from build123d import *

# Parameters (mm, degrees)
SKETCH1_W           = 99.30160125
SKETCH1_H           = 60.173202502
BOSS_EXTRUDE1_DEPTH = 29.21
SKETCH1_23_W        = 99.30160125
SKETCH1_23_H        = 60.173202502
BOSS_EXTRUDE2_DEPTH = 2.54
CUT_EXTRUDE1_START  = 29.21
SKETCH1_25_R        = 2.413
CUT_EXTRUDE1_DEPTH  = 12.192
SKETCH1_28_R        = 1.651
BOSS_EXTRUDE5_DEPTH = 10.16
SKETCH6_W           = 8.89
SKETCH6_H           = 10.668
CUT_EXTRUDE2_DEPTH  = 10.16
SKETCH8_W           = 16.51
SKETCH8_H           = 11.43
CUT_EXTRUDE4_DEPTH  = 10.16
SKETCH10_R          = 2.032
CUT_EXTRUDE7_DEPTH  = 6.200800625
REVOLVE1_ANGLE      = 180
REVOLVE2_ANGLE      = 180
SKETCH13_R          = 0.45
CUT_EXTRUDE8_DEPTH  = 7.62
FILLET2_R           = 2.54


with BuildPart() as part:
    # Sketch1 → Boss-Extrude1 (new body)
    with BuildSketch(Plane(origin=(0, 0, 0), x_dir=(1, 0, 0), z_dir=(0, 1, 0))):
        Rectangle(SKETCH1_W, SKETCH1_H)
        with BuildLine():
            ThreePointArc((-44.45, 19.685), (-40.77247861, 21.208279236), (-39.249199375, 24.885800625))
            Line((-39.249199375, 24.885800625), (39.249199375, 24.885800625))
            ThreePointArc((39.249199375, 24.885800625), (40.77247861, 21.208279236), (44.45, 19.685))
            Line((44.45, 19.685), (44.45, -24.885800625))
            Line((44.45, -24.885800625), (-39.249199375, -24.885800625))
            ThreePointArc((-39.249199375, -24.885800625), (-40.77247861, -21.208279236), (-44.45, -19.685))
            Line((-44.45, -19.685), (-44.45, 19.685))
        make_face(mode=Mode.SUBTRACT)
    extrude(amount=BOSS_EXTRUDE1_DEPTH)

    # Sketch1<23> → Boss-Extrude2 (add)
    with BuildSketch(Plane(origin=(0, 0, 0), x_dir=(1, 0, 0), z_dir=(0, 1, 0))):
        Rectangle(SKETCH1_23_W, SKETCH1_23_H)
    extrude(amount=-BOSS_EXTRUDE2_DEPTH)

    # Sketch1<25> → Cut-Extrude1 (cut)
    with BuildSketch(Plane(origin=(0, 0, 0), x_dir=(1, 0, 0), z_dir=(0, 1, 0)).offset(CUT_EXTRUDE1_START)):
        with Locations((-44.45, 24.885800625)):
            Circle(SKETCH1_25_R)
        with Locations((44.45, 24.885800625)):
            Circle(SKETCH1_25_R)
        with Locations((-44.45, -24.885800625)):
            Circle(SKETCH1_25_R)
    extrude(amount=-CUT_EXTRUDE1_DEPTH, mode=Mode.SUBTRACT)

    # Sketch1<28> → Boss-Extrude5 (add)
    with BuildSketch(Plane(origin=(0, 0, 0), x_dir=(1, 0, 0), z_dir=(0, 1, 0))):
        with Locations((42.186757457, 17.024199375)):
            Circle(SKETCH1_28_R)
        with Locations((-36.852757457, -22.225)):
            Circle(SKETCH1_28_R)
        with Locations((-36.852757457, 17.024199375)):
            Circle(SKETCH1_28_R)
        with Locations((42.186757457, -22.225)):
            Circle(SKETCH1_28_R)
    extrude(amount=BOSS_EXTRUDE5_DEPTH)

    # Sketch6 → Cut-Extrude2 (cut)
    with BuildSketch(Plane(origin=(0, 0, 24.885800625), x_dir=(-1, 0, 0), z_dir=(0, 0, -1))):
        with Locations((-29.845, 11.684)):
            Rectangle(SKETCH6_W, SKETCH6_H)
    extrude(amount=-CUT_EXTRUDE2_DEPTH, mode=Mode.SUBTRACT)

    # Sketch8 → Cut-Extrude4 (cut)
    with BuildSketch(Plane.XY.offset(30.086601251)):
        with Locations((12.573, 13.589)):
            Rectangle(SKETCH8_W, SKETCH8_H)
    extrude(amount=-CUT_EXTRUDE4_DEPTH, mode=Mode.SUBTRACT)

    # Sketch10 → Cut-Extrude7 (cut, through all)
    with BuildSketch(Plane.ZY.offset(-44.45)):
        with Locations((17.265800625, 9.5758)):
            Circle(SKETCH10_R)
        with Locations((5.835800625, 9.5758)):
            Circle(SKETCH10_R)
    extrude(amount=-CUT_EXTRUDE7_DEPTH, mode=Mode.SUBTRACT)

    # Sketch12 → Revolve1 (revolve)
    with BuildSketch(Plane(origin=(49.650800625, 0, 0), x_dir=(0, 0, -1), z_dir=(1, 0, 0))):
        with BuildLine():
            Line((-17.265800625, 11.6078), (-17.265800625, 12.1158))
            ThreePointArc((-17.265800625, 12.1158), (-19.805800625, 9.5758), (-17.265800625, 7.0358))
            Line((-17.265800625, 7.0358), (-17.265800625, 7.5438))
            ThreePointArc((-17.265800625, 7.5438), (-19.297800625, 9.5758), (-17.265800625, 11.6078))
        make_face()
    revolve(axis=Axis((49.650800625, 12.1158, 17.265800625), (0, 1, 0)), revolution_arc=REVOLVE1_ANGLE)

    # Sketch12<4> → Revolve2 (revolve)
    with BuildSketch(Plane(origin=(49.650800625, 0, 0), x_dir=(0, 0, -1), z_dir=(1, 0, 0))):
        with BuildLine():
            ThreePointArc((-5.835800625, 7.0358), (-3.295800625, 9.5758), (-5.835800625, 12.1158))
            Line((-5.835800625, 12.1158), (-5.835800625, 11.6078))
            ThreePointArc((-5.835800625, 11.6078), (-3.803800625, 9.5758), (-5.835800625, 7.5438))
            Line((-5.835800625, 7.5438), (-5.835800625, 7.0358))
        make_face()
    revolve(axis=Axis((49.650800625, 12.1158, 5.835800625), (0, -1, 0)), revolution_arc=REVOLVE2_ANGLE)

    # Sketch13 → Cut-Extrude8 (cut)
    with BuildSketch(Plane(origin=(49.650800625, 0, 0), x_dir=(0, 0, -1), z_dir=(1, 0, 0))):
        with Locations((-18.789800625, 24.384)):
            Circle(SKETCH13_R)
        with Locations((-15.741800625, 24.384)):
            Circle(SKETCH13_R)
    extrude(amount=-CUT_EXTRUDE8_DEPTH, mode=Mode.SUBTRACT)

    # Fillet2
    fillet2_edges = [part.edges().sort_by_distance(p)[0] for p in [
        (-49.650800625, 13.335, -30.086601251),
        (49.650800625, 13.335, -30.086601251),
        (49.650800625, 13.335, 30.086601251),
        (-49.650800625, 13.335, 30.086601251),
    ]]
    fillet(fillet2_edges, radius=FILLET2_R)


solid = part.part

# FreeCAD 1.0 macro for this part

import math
import FreeCAD as App
import Part
import Sketcher
from FreeCAD import Vector
Q = App.Units.Quantity


def edges_at(feature, points):
    """Names of the edges that pass closest to the given points."""
    edges = feature.Shape.Edges
    near = lambda p: min(range(len(edges)), key=lambda i: edges[i].distToShape(Part.Vertex(*p))[0])
    return sorted({f"Edge{near(p) + 1}" for p in points})

doc = App.newDocument("Part")
body = doc.addObject("PartDesign::Body", "Body")

# Sketch on XZ plane
sketch1 = body.newObject("Sketcher::SketchObject", "Sketch")
sketch1.AttachmentSupport = (doc.getObject("XZ_Plane"), [""])
sketch1.MapMode = "FlatFace"
sketch1.addGeometry([
    Part.LineSegment(Vector(-49.650801, -30.086601, 0), Vector(-49.650801, 30.086601, 0)),  # 0
    Part.LineSegment(Vector(-49.650801, 30.086601, 0), Vector(49.650801, 30.086601, 0)),  # 1
    Part.LineSegment(Vector(49.650801, 30.086601, 0), Vector(49.650801, -30.086601, 0)),  # 2
    Part.LineSegment(Vector(49.650801, -30.086601, 0), Vector(-49.650801, -30.086601, 0)),  # 3
    Part.LineSegment(Vector(-44.45, 19.685, 0), Vector(-44.45, -19.685, 0)),  # 4
    Part.ArcOfCircle(Part.Circle(Vector(-44.45, -24.885801, 0), Vector(0, 0, 1), 5.200801), math.radians(0), math.radians(90)),  # 5
    Part.LineSegment(Vector(-39.249199, -24.885801, 0), Vector(39.249199, -24.885801, 0)),  # 6
    Part.ArcOfCircle(Part.Circle(Vector(44.45, -24.885801, 0), Vector(0, 0, 1), 5.200801), math.radians(90), math.radians(180)),  # 7
    Part.LineSegment(Vector(44.45, -19.685, 0), Vector(44.45, 24.885801, 0)),  # 8
    Part.LineSegment(Vector(44.45, 24.885801, 0), Vector(-39.249199, 24.885801, 0)),  # 9
    Part.ArcOfCircle(Part.Circle(Vector(-44.45, 24.885801, 0), Vector(0, 0, 1), 5.200801), math.radians(-90), math.radians(0)),  # 10
], False)
sketch1.addConstraint([
    Sketcher.Constraint("Coincident", 0, 2, 1, 1),
    Sketcher.Constraint("Coincident", 1, 2, 2, 1),
    Sketcher.Constraint("Coincident", 2, 2, 3, 1),
    Sketcher.Constraint("Coincident", 3, 2, 0, 1),
    Sketcher.Constraint("Coincident", 4, 2, 5, 2),
    Sketcher.Constraint("Coincident", 5, 1, 6, 1),
    Sketcher.Constraint("Coincident", 6, 2, 7, 2),
    Sketcher.Constraint("Coincident", 7, 1, 8, 1),
    Sketcher.Constraint("Coincident", 8, 2, 9, 1),
    Sketcher.Constraint("Coincident", 9, 2, 10, 2),
    Sketcher.Constraint("Coincident", 10, 1, 4, 1),
    Sketcher.Constraint("Vertical", 0),
    Sketcher.Constraint("Horizontal", 1),
    Sketcher.Constraint("Vertical", 2),
    Sketcher.Constraint("Horizontal", 3),
    Sketcher.Constraint("Vertical", 4),
    Sketcher.Constraint("Horizontal", 6),
    Sketcher.Constraint("Vertical", 8),
    Sketcher.Constraint("Horizontal", 9),
    Sketcher.Constraint("Equal", 5, 7),
    Sketcher.Constraint("Equal", 7, 10),
    Sketcher.Constraint("Symmetric", 7, 3, 10, 3, -1, 1),
    Sketcher.Constraint("Symmetric", 0, 2, 2, 2, -1, 1),
    Sketcher.Constraint("Symmetric", 5, 3, 7, 3, -2),
    Sketcher.Constraint("Horizontal", 7, 3, 5, 1),
    Sketcher.Constraint("Horizontal", 10, 3, 8, 2),
    Sketcher.Constraint("Vertical", 10, 3, 4, 2),
    Sketcher.Constraint("DistanceY", 4, 2, 4, 1, Q("1.55 in")),
    Sketcher.Constraint("DistanceX", 5, 3, 7, 3, Q("3.5 in")),
    Sketcher.Constraint("DistanceX", -1, 1, 7, 1, Q("1.75 in")),
    Sketcher.Constraint("Radius", 5, Q("5.200801 mm")),
    Sketcher.Constraint("DistanceX", 1, 1, 1, 2, Q("99.301601 mm")),
    Sketcher.Constraint("DistanceY", -1, 1, 0, 2, Q("30.086601 mm")),
])
pad1 = body.newObject("PartDesign::Pad", "Pad")
pad1.Profile = sketch1
pad1.Length = Q("1.15 in")
pad1.Reversed = True

# Sketch on XZ plane
sketch2 = body.newObject("Sketcher::SketchObject", "Sketch001")
sketch2.AttachmentSupport = (doc.getObject("XZ_Plane"), [""])
sketch2.MapMode = "FlatFace"
sketch2.addGeometry([
    Part.LineSegment(Vector(-49.650801, -30.086601, 0), Vector(-49.650801, 30.086601, 0)),
    Part.LineSegment(Vector(-49.650801, 30.086601, 0), Vector(49.650801, 30.086601, 0)),
    Part.LineSegment(Vector(49.650801, 30.086601, 0), Vector(49.650801, -30.086601, 0)),
    Part.LineSegment(Vector(49.650801, -30.086601, 0), Vector(-49.650801, -30.086601, 0)),
], False)
sketch2.addConstraint([
    Sketcher.Constraint("Coincident", 0, 2, 1, 1),
    Sketcher.Constraint("Coincident", 1, 2, 2, 1),
    Sketcher.Constraint("Coincident", 2, 2, 3, 1),
    Sketcher.Constraint("Coincident", 3, 2, 0, 1),
    Sketcher.Constraint("Vertical", 0),
    Sketcher.Constraint("Horizontal", 1),
    Sketcher.Constraint("Vertical", 2),
    Sketcher.Constraint("Horizontal", 3),
    Sketcher.Constraint("Symmetric", 0, 2, 2, 2, -1, 1),
    Sketcher.Constraint("DistanceX", 1, 1, 1, 2, Q("99.301601 mm")),
    Sketcher.Constraint("DistanceY", -1, 1, 0, 2, Q("30.086601 mm")),
])
pad2 = body.newObject("PartDesign::Pad", "Pad001")
pad2.Profile = sketch2
pad2.Length = Q("0.1 in")

# Sketch on XZ plane
sketch3 = body.newObject("Sketcher::SketchObject", "Sketch002")
sketch3.AttachmentSupport = (doc.getObject("XZ_Plane"), [""])
sketch3.MapMode = "FlatFace"
sketch3.AttachmentOffset = App.Placement(Vector(0, 0, -1.15 * 25.4), App.Rotation())
sketch3.addGeometry([
    Part.Circle(Vector(-44.45, -24.885801, 0), Vector(0, 0, 1), 2.413),
    Part.Circle(Vector(44.45, -24.885801, 0), Vector(0, 0, 1), 2.413),
    Part.Circle(Vector(-44.45, 24.885801, 0), Vector(0, 0, 1), 2.413),
], False)
sketch3.addConstraint([
    Sketcher.Constraint("Equal", 0, 1),
    Sketcher.Constraint("Equal", 1, 2),
    Sketcher.Constraint("Symmetric", 1, 3, 2, 3, -1, 1),
    Sketcher.Constraint("Symmetric", 0, 3, 1, 3, -2),
    Sketcher.Constraint("Diameter", 0, Q("0.19 in")),
    Sketcher.Constraint("DistanceX", 0, 3, 1, 3, Q("3.5 in")),
    Sketcher.Constraint("DistanceY", 0, 3, -1, 1, Q("24.885801 mm")),
])
pocket1 = body.newObject("PartDesign::Pocket", "Pocket")
pocket1.Profile = sketch3
pocket1.Length = Q("0.48 in")
pocket1.Reversed = True

# Sketch on XZ plane
sketch4 = body.newObject("Sketcher::SketchObject", "Sketch003")
sketch4.AttachmentSupport = (doc.getObject("XZ_Plane"), [""])
sketch4.MapMode = "FlatFace"
sketch4.addGeometry([
    Part.Circle(Vector(42.186757, -17.024199, 0), Vector(0, 0, 1), 1.651),
    Part.Circle(Vector(-36.852757, 22.225, 0), Vector(0, 0, 1), 1.651),
    Part.Circle(Vector(-36.852757, -17.024199, 0), Vector(0, 0, 1), 1.651),
    Part.Circle(Vector(42.186757, 22.225, 0), Vector(0, 0, 1), 1.651),
], False)
sketch4.addConstraint([
    Sketcher.Constraint("Equal", 0, 1),
    Sketcher.Constraint("Equal", 1, 2),
    Sketcher.Constraint("Equal", 2, 3),
    Sketcher.Constraint("Horizontal", 0, 3, 2, 3),
    Sketcher.Constraint("Horizontal", 1, 3, 3, 3),
    Sketcher.Constraint("Vertical", 1, 3, 2, 3),
    Sketcher.Constraint("Vertical", 0, 3, 3, 3),
    Sketcher.Constraint("Diameter", 0, Q("0.13 in")),
    Sketcher.Constraint("DistanceY", -1, 1, 1, 3, Q("0.875 in")),
    Sketcher.Constraint("DistanceY", 0, 3, -1, 1, Q("17.024199 mm")),
    Sketcher.Constraint("DistanceX", -1, 1, 0, 3, Q("42.186757 mm")),
    Sketcher.Constraint("DistanceX", 1, 3, -1, 1, Q("36.852757 mm")),
])
pad3 = body.newObject("PartDesign::Pad", "Pad002")
pad3.Profile = sketch4
pad3.Length = Q("0.4 in")
pad3.Reversed = True

# Sketch on XY plane
sketch5 = body.newObject("Sketcher::SketchObject", "Sketch004")
sketch5.AttachmentSupport = (doc.getObject("XY_Plane"), [""])
sketch5.MapMode = "FlatFace"
sketch5.AttachmentOffset = App.Placement(Vector(0, 0, 24.885801), App.Rotation())
sketch5.addGeometry([
    Part.LineSegment(Vector(34.29, 17.018, 0), Vector(34.29, 6.35, 0)),
    Part.LineSegment(Vector(34.29, 6.35, 0), Vector(25.4, 6.35, 0)),
    Part.LineSegment(Vector(25.4, 6.35, 0), Vector(25.4, 17.018, 0)),
    Part.LineSegment(Vector(25.4, 17.018, 0), Vector(34.29, 17.018, 0)),
], False)
sketch5.addConstraint([
    Sketcher.Constraint("Coincident", 0, 2, 1, 1),
    Sketcher.Constraint("Coincident", 1, 2, 2, 1),
    Sketcher.Constraint("Coincident", 2, 2, 3, 1),
    Sketcher.Constraint("Coincident", 3, 2, 0, 1),
    Sketcher.Constraint("Vertical", 0),
    Sketcher.Constraint("Horizontal", 1),
    Sketcher.Constraint("Vertical", 2),
    Sketcher.Constraint("Horizontal", 3),
    Sketcher.Constraint("DistanceX", -1, 1, 1, 2, Q("1 in")),
    Sketcher.Constraint("DistanceX", 1, 2, 1, 1, Q("0.35 in")),
    Sketcher.Constraint("DistanceY", 0, 2, 0, 1, Q("0.42 in")),
    Sketcher.Constraint("DistanceY", -1, 1, 0, 2, Q("0.25 in")),
])
pocket2 = body.newObject("PartDesign::Pocket", "Pocket001")
pocket2.Profile = sketch5
pocket2.Length = Q("0.4 in")
pocket2.Reversed = True

# Sketch on XY plane
sketch6 = body.newObject("Sketcher::SketchObject", "Sketch005")
sketch6.AttachmentSupport = (doc.getObject("XY_Plane"), [""])
sketch6.MapMode = "FlatFace"
sketch6.AttachmentOffset = App.Placement(Vector(0, 0, 30.086601), App.Rotation())
sketch6.addGeometry([
    Part.LineSegment(Vector(4.318, 19.304, 0), Vector(4.318, 7.874, 0)),
    Part.LineSegment(Vector(4.318, 7.874, 0), Vector(20.828, 7.874, 0)),
    Part.LineSegment(Vector(20.828, 7.874, 0), Vector(20.828, 19.304, 0)),
    Part.LineSegment(Vector(20.828, 19.304, 0), Vector(4.318, 19.304, 0)),
], False)
sketch6.addConstraint([
    Sketcher.Constraint("Coincident", 0, 2, 1, 1),
    Sketcher.Constraint("Coincident", 1, 2, 2, 1),
    Sketcher.Constraint("Coincident", 2, 2, 3, 1),
    Sketcher.Constraint("Coincident", 3, 2, 0, 1),
    Sketcher.Constraint("Vertical", 0),
    Sketcher.Constraint("Horizontal", 1),
    Sketcher.Constraint("Vertical", 2),
    Sketcher.Constraint("Horizontal", 3),
    Sketcher.Constraint("DistanceX", 1, 1, 1, 2, Q("0.65 in")),
    Sketcher.Constraint("DistanceY", 0, 2, 0, 1, Q("0.45 in")),
    Sketcher.Constraint("DistanceX", -1, 1, 0, 2, Q("0.17 in")),
    Sketcher.Constraint("DistanceY", -1, 1, 0, 2, Q("0.31 in")),
])
pocket3 = body.newObject("PartDesign::Pocket", "Pocket002")
pocket3.Profile = sketch6
pocket3.Length = Q("0.4 in")

# Sketch on YZ plane
sketch7 = body.newObject("Sketcher::SketchObject", "Sketch006")
sketch7.AttachmentSupport = (doc.getObject("YZ_Plane"), [""])
sketch7.MapMode = "FlatFace"
sketch7.AttachmentOffset = App.Placement(Vector(0, 0, 1.75 * 25.4), App.Rotation())
sketch7.addGeometry([
    Part.Circle(Vector(9.5758, 17.265801, 0), Vector(0, 0, 1), 2.032),
    Part.Circle(Vector(9.5758, 5.835801, 0), Vector(0, 0, 1), 2.032),
], False)
sketch7.addConstraint([
    Sketcher.Constraint("Equal", 0, 1),
    Sketcher.Constraint("Vertical", 0, 3, 1, 3),
    Sketcher.Constraint("Diameter", 0, Q("0.16 in")),
    Sketcher.Constraint("DistanceY", 1, 3, 0, 3, Q("0.45 in")),
    Sketcher.Constraint("DistanceX", -1, 1, 0, 3, Q("0.377 in")),
    Sketcher.Constraint("DistanceY", -1, 1, 0, 3, Q("17.265801 mm")),
])
pocket4 = body.newObject("PartDesign::Pocket", "Pocket003")
pocket4.Profile = sketch7
pocket4.Type = "ThroughAll"
pocket4.Reversed = True

# Sketch on YZ plane
sketch8 = body.newObject("Sketcher::SketchObject", "Sketch007")
sketch8.AttachmentSupport = (doc.getObject("YZ_Plane"), [""])
sketch8.MapMode = "FlatFace"
sketch8.AttachmentOffset = App.Placement(Vector(0, 0, 49.650801), App.Rotation())
sketch8.addGeometry([
    Part.LineSegment(Vector(11.6078, 17.265801, 0), Vector(12.1158, 17.265801, 0)),
    Part.ArcOfCircle(Part.Circle(Vector(9.5758, 17.265801, 0), Vector(0, 0, 1), 2.54), math.radians(0), math.radians(180)),
    Part.LineSegment(Vector(7.0358, 17.265801, 0), Vector(7.5438, 17.265801, 0)),
    Part.ArcOfCircle(Part.Circle(Vector(9.5758, 17.265801, 0), Vector(0, 0, 1), 2.032), math.radians(0), math.radians(180)),
], False)
sketch8.addGeometry(Part.LineSegment(Vector(7.0358, 17.265801, 0), Vector(12.1158, 17.265801, 0)), True)  # axis
sketch8.addConstraint([
    Sketcher.Constraint("Coincident", 0, 2, 1, 1),
    Sketcher.Constraint("Coincident", 1, 2, 2, 1),
    Sketcher.Constraint("Coincident", 2, 2, 3, 2),
    Sketcher.Constraint("Coincident", 3, 1, 0, 1),
    Sketcher.Constraint("Horizontal", 0),
    Sketcher.Constraint("Horizontal", 2),
    Sketcher.Constraint("Horizontal", 4),
    Sketcher.Constraint("Coincident", 3, 3, 1, 3),
    Sketcher.Constraint("Coincident", 4, 1, 1, 2),
    Sketcher.Constraint("Coincident", 4, 2, 0, 2),
    Sketcher.Constraint("Horizontal", 3, 3, 0, 2),
    Sketcher.Constraint("Radius", 1, Q("0.1 in")),
    Sketcher.Constraint("Radius", 3, Q("0.08 in")),
    Sketcher.Constraint("DistanceX", -1, 1, 1, 3, Q("0.377 in")),
    Sketcher.Constraint("DistanceY", -1, 1, 1, 3, Q("17.265801 mm")),
])
revolution = body.newObject("PartDesign::Revolution", "Revolution")
revolution.Profile = sketch8
revolution.ReferenceAxis = (sketch8, ["Axis0"])
revolution.Angle = 180

# Sketch on YZ plane
sketch9 = body.newObject("Sketcher::SketchObject", "Sketch008")
sketch9.AttachmentSupport = (doc.getObject("YZ_Plane"), [""])
sketch9.MapMode = "FlatFace"
sketch9.AttachmentOffset = App.Placement(Vector(0, 0, 49.650801), App.Rotation())
sketch9.addGeometry([
    Part.ArcOfCircle(Part.Circle(Vector(9.5758, 5.835801, 0), Vector(0, 0, 1), 2.54), math.radians(180), math.radians(360)),
    Part.LineSegment(Vector(12.1158, 5.835801, 0), Vector(11.6078, 5.835801, 0)),
    Part.ArcOfCircle(Part.Circle(Vector(9.5758, 5.835801, 0), Vector(0, 0, 1), 2.032), math.radians(180), math.radians(360)),
    Part.LineSegment(Vector(7.5438, 5.835801, 0), Vector(7.0358, 5.835801, 0)),
], False)
sketch9.addGeometry(Part.LineSegment(Vector(12.1158, 5.835801, 0), Vector(7.0358, 5.835801, 0)), True)  # axis
sketch9.addConstraint([
    Sketcher.Constraint("Coincident", 0, 2, 1, 1),
    Sketcher.Constraint("Coincident", 1, 2, 2, 2),
    Sketcher.Constraint("Coincident", 2, 1, 3, 1),
    Sketcher.Constraint("Coincident", 3, 2, 0, 1),
    Sketcher.Constraint("Horizontal", 1),
    Sketcher.Constraint("Horizontal", 3),
    Sketcher.Constraint("Horizontal", 4),
    Sketcher.Constraint("Coincident", 2, 3, 0, 3),
    Sketcher.Constraint("Coincident", 4, 1, 0, 2),
    Sketcher.Constraint("Coincident", 4, 2, 3, 2),
    Sketcher.Constraint("Horizontal", 2, 3, 0, 2),
    Sketcher.Constraint("Radius", 0, Q("0.1 in")),
    Sketcher.Constraint("Radius", 2, Q("0.08 in")),
    Sketcher.Constraint("DistanceX", -1, 1, 0, 3, Q("0.377 in")),
    Sketcher.Constraint("DistanceY", -1, 1, 0, 3, Q("5.835801 mm")),
])
revolution2 = body.newObject("PartDesign::Revolution", "Revolution001")
revolution2.Profile = sketch9
revolution2.ReferenceAxis = (sketch9, ["Axis0"])
revolution2.Angle = 180

# Sketch on YZ plane
sketch10 = body.newObject("Sketcher::SketchObject", "Sketch009")
sketch10.AttachmentSupport = (doc.getObject("YZ_Plane"), [""])
sketch10.MapMode = "FlatFace"
sketch10.AttachmentOffset = App.Placement(Vector(0, 0, 49.650801), App.Rotation())
sketch10.addGeometry([
    Part.Circle(Vector(24.384, 18.789801, 0), Vector(0, 0, 1), 0.45),
    Part.Circle(Vector(24.384, 15.741801, 0), Vector(0, 0, 1), 0.45),
], False)
sketch10.addConstraint([
    Sketcher.Constraint("Equal", 0, 1),
    Sketcher.Constraint("Vertical", 0, 3, 1, 3),
    Sketcher.Constraint("Diameter", 0, Q("0.9 mm")),
    Sketcher.Constraint("DistanceX", -1, 1, 0, 3, Q("0.96 in")),
    Sketcher.Constraint("DistanceY", 1, 3, 0, 3, Q("0.12 in")),
    Sketcher.Constraint("DistanceY", -1, 1, 0, 3, Q("18.789801 mm")),
])
pocket5 = body.newObject("PartDesign::Pocket", "Pocket004")
pocket5.Profile = sketch10
pocket5.Length = Q("0.3 in")
doc.recompute()

fillet = body.newObject("PartDesign::Fillet", "Fillet")
fillet.Base = (pocket5, edges_at(pocket5, [
    (-49.651, 13.335, -30.087),
    (49.651, 13.335, -30.087),
    (49.651, 13.335, 30.087),
    (-49.651, 13.335, 30.087),
]))
fillet.Radius = Q("0.1 in")

doc.recompute()
